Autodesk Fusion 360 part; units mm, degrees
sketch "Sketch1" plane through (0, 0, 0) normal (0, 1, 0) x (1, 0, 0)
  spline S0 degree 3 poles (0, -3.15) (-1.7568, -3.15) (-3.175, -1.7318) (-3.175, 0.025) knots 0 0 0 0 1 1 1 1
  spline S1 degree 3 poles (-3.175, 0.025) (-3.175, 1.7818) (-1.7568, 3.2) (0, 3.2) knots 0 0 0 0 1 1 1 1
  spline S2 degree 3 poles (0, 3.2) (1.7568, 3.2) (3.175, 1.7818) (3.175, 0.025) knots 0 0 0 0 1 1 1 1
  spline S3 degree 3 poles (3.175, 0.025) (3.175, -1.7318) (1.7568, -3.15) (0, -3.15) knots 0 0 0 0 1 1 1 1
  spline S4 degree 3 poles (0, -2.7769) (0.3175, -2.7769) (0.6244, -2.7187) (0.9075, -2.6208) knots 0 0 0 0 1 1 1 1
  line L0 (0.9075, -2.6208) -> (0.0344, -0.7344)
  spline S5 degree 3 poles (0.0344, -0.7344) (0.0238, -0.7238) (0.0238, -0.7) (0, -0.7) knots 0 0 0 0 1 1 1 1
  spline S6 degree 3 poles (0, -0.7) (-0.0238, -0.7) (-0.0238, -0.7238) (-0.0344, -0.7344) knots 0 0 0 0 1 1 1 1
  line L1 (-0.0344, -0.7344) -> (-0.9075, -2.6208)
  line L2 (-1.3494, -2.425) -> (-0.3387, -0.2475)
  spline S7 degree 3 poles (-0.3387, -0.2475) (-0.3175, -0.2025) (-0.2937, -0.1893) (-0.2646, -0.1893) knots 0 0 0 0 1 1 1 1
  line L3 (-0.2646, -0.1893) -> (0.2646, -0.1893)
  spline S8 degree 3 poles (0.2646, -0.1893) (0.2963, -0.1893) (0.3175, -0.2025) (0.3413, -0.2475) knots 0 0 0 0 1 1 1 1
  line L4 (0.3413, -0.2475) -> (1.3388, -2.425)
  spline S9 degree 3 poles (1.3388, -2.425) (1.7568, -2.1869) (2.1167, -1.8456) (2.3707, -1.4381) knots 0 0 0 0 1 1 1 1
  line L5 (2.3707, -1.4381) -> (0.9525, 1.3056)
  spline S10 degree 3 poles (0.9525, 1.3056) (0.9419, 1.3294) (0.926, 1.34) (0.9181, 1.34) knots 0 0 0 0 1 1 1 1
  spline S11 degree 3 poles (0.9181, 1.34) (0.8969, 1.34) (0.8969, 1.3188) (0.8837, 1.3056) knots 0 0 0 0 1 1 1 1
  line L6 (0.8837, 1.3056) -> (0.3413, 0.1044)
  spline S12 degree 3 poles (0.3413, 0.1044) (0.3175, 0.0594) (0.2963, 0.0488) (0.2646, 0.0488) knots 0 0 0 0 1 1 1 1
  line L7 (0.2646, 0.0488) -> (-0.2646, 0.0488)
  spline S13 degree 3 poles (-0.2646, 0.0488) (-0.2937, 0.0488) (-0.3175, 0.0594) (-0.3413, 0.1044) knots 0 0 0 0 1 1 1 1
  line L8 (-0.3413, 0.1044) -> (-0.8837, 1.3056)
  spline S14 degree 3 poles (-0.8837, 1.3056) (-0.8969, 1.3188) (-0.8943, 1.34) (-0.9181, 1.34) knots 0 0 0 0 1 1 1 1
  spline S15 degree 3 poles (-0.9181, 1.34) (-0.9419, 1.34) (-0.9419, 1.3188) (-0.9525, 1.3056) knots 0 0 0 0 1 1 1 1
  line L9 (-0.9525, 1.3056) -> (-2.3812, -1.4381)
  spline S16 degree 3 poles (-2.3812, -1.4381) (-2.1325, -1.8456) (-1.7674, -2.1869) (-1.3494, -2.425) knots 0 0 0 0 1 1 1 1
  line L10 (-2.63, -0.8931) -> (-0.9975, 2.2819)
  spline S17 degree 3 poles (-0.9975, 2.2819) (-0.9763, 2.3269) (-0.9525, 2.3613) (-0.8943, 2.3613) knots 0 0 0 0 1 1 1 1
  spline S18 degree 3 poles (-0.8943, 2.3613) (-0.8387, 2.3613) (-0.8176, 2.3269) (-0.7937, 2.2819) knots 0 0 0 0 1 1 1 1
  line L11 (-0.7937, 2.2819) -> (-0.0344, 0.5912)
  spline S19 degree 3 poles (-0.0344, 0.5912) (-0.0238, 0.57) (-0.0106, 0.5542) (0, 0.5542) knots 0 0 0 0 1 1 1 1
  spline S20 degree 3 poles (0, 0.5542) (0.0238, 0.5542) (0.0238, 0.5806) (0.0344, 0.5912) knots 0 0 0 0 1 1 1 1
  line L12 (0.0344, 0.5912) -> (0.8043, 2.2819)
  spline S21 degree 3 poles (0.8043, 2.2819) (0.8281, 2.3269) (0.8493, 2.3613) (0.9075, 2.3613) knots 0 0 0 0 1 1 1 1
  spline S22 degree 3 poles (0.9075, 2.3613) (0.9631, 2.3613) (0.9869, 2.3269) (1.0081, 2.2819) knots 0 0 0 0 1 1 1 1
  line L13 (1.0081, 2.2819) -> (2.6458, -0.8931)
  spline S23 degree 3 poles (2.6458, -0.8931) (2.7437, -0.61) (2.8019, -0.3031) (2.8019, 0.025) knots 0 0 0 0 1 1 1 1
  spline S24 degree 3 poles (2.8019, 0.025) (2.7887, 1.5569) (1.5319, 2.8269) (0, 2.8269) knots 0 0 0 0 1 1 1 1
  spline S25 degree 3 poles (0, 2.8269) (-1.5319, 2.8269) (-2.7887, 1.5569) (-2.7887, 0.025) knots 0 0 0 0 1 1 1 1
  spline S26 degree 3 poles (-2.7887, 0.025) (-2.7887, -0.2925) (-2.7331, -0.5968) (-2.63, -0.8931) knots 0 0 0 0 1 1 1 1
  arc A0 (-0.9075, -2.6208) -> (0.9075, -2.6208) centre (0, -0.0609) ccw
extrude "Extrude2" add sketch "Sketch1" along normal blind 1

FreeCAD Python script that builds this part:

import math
import FreeCAD as App
import Part
import Sketcher

doc = App.newDocument("Part")
params = doc.addObject("Spreadsheet::Sheet", "Params")
for row, (alias, value) in enumerate([
    ("sketch1_height", "2.56 mm"),
    ("pad1_length", "1 mm"),
], start=1):
    params.set(f"A{row}", alias)
    params.set(f"B{row}", "=" + value)
    params.setAlias(f"B{row}", alias)

body = doc.addObject("PartDesign::Body", "Body")

# Sketch on XZ plane
sketch1 = doc.addObject("Sketcher::SketchObject", "Sketch")
body.addObject(sketch1)
sketch1.AttachmentSupport = (doc.XZ_Plane, [""])
sketch1.MapMode = "FlatFace"
sketch1.addGeometry(Part.BSplineCurve([App.Vector(0, 3.15, 0), App.Vector(-1.7568, 3.15, 0), App.Vector(-3.175, 1.7318, 0), App.Vector(-3.175, -0.025, 0)], [4, 4], [0, 1], False, 3, [1, 1, 1, 1], False), False)
sketch1.addGeometry(Part.BSplineCurve([App.Vector(3.175, -0.025, 0), App.Vector(3.175, 1.7318, 0), App.Vector(1.7568, 3.15, 0), App.Vector(0, 3.15, 0)], [4, 4], [0, 1], False, 3, [1, 1, 1, 1], False), False)
sketch1.addGeometry(Part.BSplineCurve([App.Vector(0, -3.2, 0), App.Vector(1.7568, -3.2, 0), App.Vector(3.175, -1.7818, 0), App.Vector(3.175, -0.025, 0)], [4, 4], [0, 1], False, 3, [1, 1, 1, 1], False), False)
sketch1.addGeometry(Part.BSplineCurve([App.Vector(-3.175, -0.025, 0), App.Vector(-3.175, -1.7818, 0), App.Vector(-1.7568, -3.2, 0), App.Vector(0, -3.2, 0)], [4, 4], [0, 1], False, 3, [1, 1, 1, 1], False), False)
sketch1.addGeometry(Part.BSplineCurve([App.Vector(0, 2.7769, 0), App.Vector(0.3175, 2.7769, 0), App.Vector(0.6244, 2.7187, 0), App.Vector(0.9075, 2.6208, 0)], [4, 4], [0, 1], False, 3, [1, 1, 1, 1], False), False)
sketch1.addGeometry(Part.ArcOfCircle(Part.Circle(App.Vector(0, 0.0609, 0), App.Vector(0, 0, 1), 2.715998), math.radians(90), math.radians(109.519724)), False)
sketch1.addGeometry(Part.LineSegment(App.Vector(-0.9075, 2.6208, 0), App.Vector(-0.0344, 0.7344, 0)), False)
sketch1.addGeometry(Part.BSplineCurve([App.Vector(0, 0.7, 0), App.Vector(-0.0238, 0.7, 0), App.Vector(-0.0238, 0.7238, 0), App.Vector(-0.0344, 0.7344, 0)], [4, 4], [0, 1], False, 3, [1, 1, 1, 1], False), False)
sketch1.addGeometry(Part.BSplineCurve([App.Vector(0.0344, 0.7344, 0), App.Vector(0.0238, 0.7238, 0), App.Vector(0.0238, 0.7, 0), App.Vector(0, 0.7, 0)], [4, 4], [0, 1], False, 3, [1, 1, 1, 1], False), False)
sketch1.addGeometry(Part.LineSegment(App.Vector(0.0344, 0.7344, 0), App.Vector(0.9075, 2.6208, 0)), False)
sketch1.addGeometry(Part.LineSegment(App.Vector(-0.3387, 0.2475, 0), App.Vector(-1.3494, 2.425, 0)), False)
sketch1.addGeometry(Part.BSplineCurve([App.Vector(-2.3812, 1.4381, 0), App.Vector(-2.1325, 1.8456, 0), App.Vector(-1.7674, 2.1869, 0), App.Vector(-1.3494, 2.425, 0)], [4, 4], [0, 1], False, 3, [1, 1, 1, 1], False), False)
sketch1.addGeometry(Part.LineSegment(App.Vector(-2.3812, 1.4381, 0), App.Vector(-0.9525, -1.3056, 0)), False)
sketch1.addGeometry(Part.BSplineCurve([App.Vector(-0.9181, -1.34, 0), App.Vector(-0.9419, -1.34, 0), App.Vector(-0.9419, -1.3188, 0), App.Vector(-0.9525, -1.3056, 0)], [4, 4], [0, 1], False, 3, [1, 1, 1, 1], False), False)
sketch1.addGeometry(Part.BSplineCurve([App.Vector(-0.8837, -1.3056, 0), App.Vector(-0.8969, -1.3188, 0), App.Vector(-0.8943, -1.34, 0), App.Vector(-0.9181, -1.34, 0)], [4, 4], [0, 1], False, 3, [1, 1, 1, 1], False), False)
sketch1.addGeometry(Part.LineSegment(App.Vector(-0.8837, -1.3056, 0), App.Vector(-0.3413, -0.1044, 0)), False)
sketch1.addGeometry(Part.BSplineCurve([App.Vector(-0.2646, -0.0488, 0), App.Vector(-0.2937, -0.0488, 0), App.Vector(-0.3175, -0.0594, 0), App.Vector(-0.3413, -0.1044, 0)], [4, 4], [0, 1], False, 3, [1, 1, 1, 1], False), False)
sketch1.addGeometry(Part.LineSegment(App.Vector(-0.2646, -0.0488, 0), App.Vector(0.2646, -0.0488, 0)), False)
sketch1.addGeometry(Part.BSplineCurve([App.Vector(0.3413, -0.1044, 0), App.Vector(0.3175, -0.0594, 0), App.Vector(0.2963, -0.0488, 0), App.Vector(0.2646, -0.0488, 0)], [4, 4], [0, 1], False, 3, [1, 1, 1, 1], False), False)
sketch1.addGeometry(Part.LineSegment(App.Vector(0.3413, -0.1044, 0), App.Vector(0.8837, -1.3056, 0)), False)
sketch1.addGeometry(Part.BSplineCurve([App.Vector(0.9181, -1.34, 0), App.Vector(0.8969, -1.34, 0), App.Vector(0.8969, -1.3188, 0), App.Vector(0.8837, -1.3056, 0)], [4, 4], [0, 1], False, 3, [1, 1, 1, 1], False), False)
sketch1.addGeometry(Part.BSplineCurve([App.Vector(0.9525, -1.3056, 0), App.Vector(0.9419, -1.3294, 0), App.Vector(0.926, -1.34, 0), App.Vector(0.9181, -1.34, 0)], [4, 4], [0, 1], False, 3, [1, 1, 1, 1], False), False)
sketch1.addGeometry(Part.LineSegment(App.Vector(0.9525, -1.3056, 0), App.Vector(2.3707, 1.4381, 0)), False)
sketch1.addGeometry(Part.BSplineCurve([App.Vector(1.3388, 2.425, 0), App.Vector(1.7568, 2.1869, 0), App.Vector(2.1167, 1.8456, 0), App.Vector(2.3707, 1.4381, 0)], [4, 4], [0, 1], False, 3, [1, 1, 1, 1], False), False)
sketch1.addGeometry(Part.LineSegment(App.Vector(1.3388, 2.425, 0), App.Vector(0.3413, 0.2475, 0)), False)
sketch1.addGeometry(Part.BSplineCurve([App.Vector(0.2646, 0.1893, 0), App.Vector(0.2963, 0.1893, 0), App.Vector(0.3175, 0.2025, 0), App.Vector(0.3413, 0.2475, 0)], [4, 4], [0, 1], False, 3, [1, 1, 1, 1], False), False)
sketch1.addGeometry(Part.LineSegment(App.Vector(0.2646, 0.1893, 0), App.Vector(-0.2646, 0.1893, 0)), False)
sketch1.addGeometry(Part.BSplineCurve([App.Vector(-0.3387, 0.2475, 0), App.Vector(-0.3175, 0.2025, 0), App.Vector(-0.2937, 0.1893, 0), App.Vector(-0.2646, 0.1893, 0)], [4, 4], [0, 1], False, 3, [1, 1, 1, 1], False), False)
sketch1.addGeometry(Part.LineSegment(App.Vector(-0.9975, -2.2819, 0), App.Vector(-2.63, 0.8931, 0)), False)
sketch1.addGeometry(Part.BSplineCurve([App.Vector(-2.7887, -0.025, 0), App.Vector(-2.7887, 0.2925, 0), App.Vector(-2.7331, 0.5968, 0), App.Vector(-2.63, 0.8931, 0)], [4, 4], [0, 1], False, 3, [1, 1, 1, 1], False), False)
sketch1.addGeometry(Part.BSplineCurve([App.Vector(0, -2.8269, 0), App.Vector(-1.5319, -2.8269, 0), App.Vector(-2.7887, -1.5569, 0), App.Vector(-2.7887, -0.025, 0)], [4, 4], [0, 1], False, 3, [1, 1, 1, 1], False), False)
sketch1.addGeometry(Part.BSplineCurve([App.Vector(2.8019, -0.025, 0), App.Vector(2.7887, -1.5569, 0), App.Vector(1.5319, -2.8269, 0), App.Vector(0, -2.8269, 0)], [4, 4], [0, 1], False, 3, [1, 1, 1, 1], False), False)
sketch1.addGeometry(Part.BSplineCurve([App.Vector(2.6458, 0.8931, 0), App.Vector(2.7437, 0.61, 0), App.Vector(2.8019, 0.3031, 0), App.Vector(2.8019, -0.025, 0)], [4, 4], [0, 1], False, 3, [1, 1, 1, 1], False), False)
sketch1.addGeometry(Part.LineSegment(App.Vector(2.6458, 0.8931, 0), App.Vector(1.0081, -2.2819, 0)), False)
sketch1.addGeometry(Part.BSplineCurve([App.Vector(0.9075, -2.3613, 0), App.Vector(0.9631, -2.3613, 0), App.Vector(0.9869, -2.3269, 0), App.Vector(1.0081, -2.2819, 0)], [4, 4], [0, 1], False, 3, [1, 1, 1, 1], False), False)
sketch1.addGeometry(Part.BSplineCurve([App.Vector(0.8043, -2.2819, 0), App.Vector(0.8281, -2.3269, 0), App.Vector(0.8493, -2.3613, 0), App.Vector(0.9075, -2.3613, 0)], [4, 4], [0, 1], False, 3, [1, 1, 1, 1], False), False)
sketch1.addGeometry(Part.LineSegment(App.Vector(0.8043, -2.2819, 0), App.Vector(0.0344, -0.5912, 0)), False)
sketch1.addGeometry(Part.BSplineCurve([App.Vector(0, -0.5542, 0), App.Vector(0.0238, -0.5542, 0), App.Vector(0.0238, -0.5806, 0), App.Vector(0.0344, -0.5912, 0)], [4, 4], [0, 1], False, 3, [1, 1, 1, 1], False), False)
sketch1.addGeometry(Part.BSplineCurve([App.Vector(-0.0344, -0.5912, 0), App.Vector(-0.0238, -0.57, 0), App.Vector(-0.0106, -0.5542, 0), App.Vector(0, -0.5542, 0)], [4, 4], [0, 1], False, 3, [1, 1, 1, 1], False), False)
sketch1.addGeometry(Part.LineSegment(App.Vector(-0.0344, -0.5912, 0), App.Vector(-0.7937, -2.2819, 0)), False)
sketch1.addGeometry(Part.BSplineCurve([App.Vector(-0.8943, -2.3613, 0), App.Vector(-0.8387, -2.3613, 0), App.Vector(-0.8176, -2.3269, 0), App.Vector(-0.7937, -2.2819, 0)], [4, 4], [0, 1], False, 3, [1, 1, 1, 1], False), False)
sketch1.addGeometry(Part.BSplineCurve([App.Vector(-0.9975, -2.2819, 0), App.Vector(-0.9763, -2.3269, 0), App.Vector(-0.9525, -2.3613, 0), App.Vector(-0.8943, -2.3613, 0)], [4, 4], [0, 1], False, 3, [1, 1, 1, 1], False), False)
sketch1.addConstraint(Sketcher.Constraint("Block", 0))
sketch1.addConstraint(Sketcher.Constraint("Block", 1))
sketch1.addConstraint(Sketcher.Constraint("Block", 2))
sketch1.addConstraint(Sketcher.Constraint("Block", 3))
sketch1.addConstraint(Sketcher.Constraint("Block", 4))
sketch1.addConstraint(Sketcher.Constraint("Block", 7))
sketch1.addConstraint(Sketcher.Constraint("Block", 8))
sketch1.addConstraint(Sketcher.Constraint("Block", 11))
sketch1.addConstraint(Sketcher.Constraint("Block", 13))
sketch1.addConstraint(Sketcher.Constraint("Block", 14))
sketch1.addConstraint(Sketcher.Constraint("Block", 16))
sketch1.addConstraint(Sketcher.Constraint("Block", 18))
sketch1.addConstraint(Sketcher.Constraint("Block", 20))
sketch1.addConstraint(Sketcher.Constraint("Block", 21))
sketch1.addConstraint(Sketcher.Constraint("Block", 23))
sketch1.addConstraint(Sketcher.Constraint("Block", 25))
sketch1.addConstraint(Sketcher.Constraint("Block", 27))
sketch1.addConstraint(Sketcher.Constraint("Block", 29))
sketch1.addConstraint(Sketcher.Constraint("Block", 30))
sketch1.addConstraint(Sketcher.Constraint("Block", 31))
sketch1.addConstraint(Sketcher.Constraint("Block", 32))
sketch1.addConstraint(Sketcher.Constraint("Block", 34))
sketch1.addConstraint(Sketcher.Constraint("Block", 35))
sketch1.addConstraint(Sketcher.Constraint("Block", 37))
sketch1.addConstraint(Sketcher.Constraint("Block", 38))
sketch1.addConstraint(Sketcher.Constraint("Block", 40))
sketch1.addConstraint(Sketcher.Constraint("Block", 41))
sketch1.addConstraint(Sketcher.Constraint("Coincident", 4, 1, 5, 1))
sketch1.addConstraint(Sketcher.Constraint("Coincident", 5, 2, 6, 1))
sketch1.addConstraint(Sketcher.Constraint("Coincident", 6, 2, 7, 2))
sketch1.addConstraint(Sketcher.Constraint("Coincident", 8, 1, 9, 1))
sketch1.addConstraint(Sketcher.Constraint("Coincident", 9, 2, 4, 2))
sketch1.addConstraint(Sketcher.Constraint("Coincident", 10, 2, 11, 2))
sketch1.addConstraint(Sketcher.Constraint("Coincident", 11, 1, 12, 1))
sketch1.addConstraint(Sketcher.Constraint("Coincident", 12, 2, 13, 2))
sketch1.addConstraint(Sketcher.Constraint("Coincident", 14, 1, 15, 1))
sketch1.addConstraint(Sketcher.Constraint("Coincident", 15, 2, 16, 2))
sketch1.addConstraint(Sketcher.Constraint("Coincident", 16, 1, 17, 1))
sketch1.addConstraint(Sketcher.Constraint("Coincident", 17, 2, 18, 2))
sketch1.addConstraint(Sketcher.Constraint("Coincident", 18, 1, 19, 1))
sketch1.addConstraint(Sketcher.Constraint("Coincident", 19, 2, 20, 2))
sketch1.addConstraint(Sketcher.Constraint("Coincident", 21, 1, 22, 1))
sketch1.addConstraint(Sketcher.Constraint("Coincident", 22, 2, 23, 2))
sketch1.addConstraint(Sketcher.Constraint("Coincident", 23, 1, 24, 1))
sketch1.addConstraint(Sketcher.Constraint("Coincident", 24, 2, 25, 2))
sketch1.addConstraint(Sketcher.Constraint("Coincident", 25, 1, 26, 1))
sketch1.addConstraint(Sketcher.Constraint("Coincident", 26, 2, 27, 2))
sketch1.addConstraint(Sketcher.Constraint("Coincident", 27, 1, 10, 1))
sketch1.addConstraint(Sketcher.Constraint("Coincident", 28, 2, 29, 2))
sketch1.addConstraint(Sketcher.Constraint("Coincident", 32, 1, 33, 1))
sketch1.addConstraint(Sketcher.Constraint("Coincident", 33, 2, 34, 2))
sketch1.addConstraint(Sketcher.Constraint("Coincident", 35, 1, 36, 1))
sketch1.addConstraint(Sketcher.Constraint("Coincident", 36, 2, 37, 2))
sketch1.addConstraint(Sketcher.Constraint("Coincident", 38, 1, 39, 1))
sketch1.addConstraint(Sketcher.Constraint("Coincident", 39, 2, 40, 2))
sketch1.addConstraint(Sketcher.Constraint("Coincident", 41, 1, 28, 1))
sketch1.addConstraint(Sketcher.Constraint("PointOnObject", 5, 3, -2))
sketch1.addConstraint(Sketcher.Constraint("Radius", 5, 2.716))
sketch1.addConstraint(Sketcher.Constraint("DistanceY", 5, 3, 5, 2, 2.56))
sketch1.setExpression("Constraints[58]", "Params.sketch1_height")
pad1 = doc.addObject("PartDesign::Pad", "Pad")
body.addObject(pad1)
pad1.Profile = sketch1
pad1.setExpression("Length", "Params.pad1_length")
pad1.Reversed = True

doc.recompute()
